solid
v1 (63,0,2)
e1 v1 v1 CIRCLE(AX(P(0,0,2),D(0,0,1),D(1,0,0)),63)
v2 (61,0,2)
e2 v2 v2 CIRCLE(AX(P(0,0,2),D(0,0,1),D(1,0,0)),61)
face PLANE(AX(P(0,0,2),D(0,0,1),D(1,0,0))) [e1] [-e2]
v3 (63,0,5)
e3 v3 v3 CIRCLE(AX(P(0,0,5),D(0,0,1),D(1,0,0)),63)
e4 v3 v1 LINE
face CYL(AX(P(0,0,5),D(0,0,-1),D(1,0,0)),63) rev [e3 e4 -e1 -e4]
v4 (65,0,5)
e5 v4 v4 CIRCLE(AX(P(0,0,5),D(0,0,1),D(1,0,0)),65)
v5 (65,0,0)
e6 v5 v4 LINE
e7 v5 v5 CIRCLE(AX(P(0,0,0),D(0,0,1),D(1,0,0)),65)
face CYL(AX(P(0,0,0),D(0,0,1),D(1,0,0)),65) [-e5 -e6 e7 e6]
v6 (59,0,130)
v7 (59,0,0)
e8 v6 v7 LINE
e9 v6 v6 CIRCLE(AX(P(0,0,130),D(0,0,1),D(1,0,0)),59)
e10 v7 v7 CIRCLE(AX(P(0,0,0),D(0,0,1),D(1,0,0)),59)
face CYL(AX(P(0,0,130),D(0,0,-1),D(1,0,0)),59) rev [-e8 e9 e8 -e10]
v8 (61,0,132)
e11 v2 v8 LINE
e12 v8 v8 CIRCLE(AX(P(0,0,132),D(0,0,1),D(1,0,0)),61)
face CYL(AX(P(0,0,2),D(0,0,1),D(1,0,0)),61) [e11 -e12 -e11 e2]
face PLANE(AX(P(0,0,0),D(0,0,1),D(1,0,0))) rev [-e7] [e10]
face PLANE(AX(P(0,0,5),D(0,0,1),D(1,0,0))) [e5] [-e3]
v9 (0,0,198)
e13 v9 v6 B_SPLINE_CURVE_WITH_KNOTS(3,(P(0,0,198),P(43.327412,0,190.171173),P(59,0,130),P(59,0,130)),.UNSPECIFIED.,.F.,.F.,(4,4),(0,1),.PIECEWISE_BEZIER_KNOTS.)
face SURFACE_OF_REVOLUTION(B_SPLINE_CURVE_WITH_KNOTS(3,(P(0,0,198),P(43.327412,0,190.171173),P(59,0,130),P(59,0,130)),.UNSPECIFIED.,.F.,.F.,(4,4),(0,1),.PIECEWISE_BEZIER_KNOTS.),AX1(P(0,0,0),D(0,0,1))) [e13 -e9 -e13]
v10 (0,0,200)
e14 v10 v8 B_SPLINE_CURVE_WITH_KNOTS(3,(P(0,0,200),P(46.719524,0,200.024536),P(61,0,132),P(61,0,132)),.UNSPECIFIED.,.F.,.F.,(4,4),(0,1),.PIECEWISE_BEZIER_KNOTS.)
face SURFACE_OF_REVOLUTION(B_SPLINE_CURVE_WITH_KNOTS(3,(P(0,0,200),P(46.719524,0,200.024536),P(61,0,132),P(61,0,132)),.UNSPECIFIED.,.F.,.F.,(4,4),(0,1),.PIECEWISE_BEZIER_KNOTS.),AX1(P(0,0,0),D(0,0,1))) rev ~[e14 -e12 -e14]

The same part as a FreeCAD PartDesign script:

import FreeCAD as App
import Part
import Sketcher
from FreeCAD import Vector

doc = App.newDocument("Part")
body = doc.addObject("PartDesign::Body", "Body")

# Sketch on XZ plane
sketch1 = doc.addObject("Sketcher::SketchObject", "Sketch")
body.addObject(sketch1)
sketch1.AttachmentSupport = (doc.XZ_Plane, [""])
sketch1.MapMode = "FlatFace"
sketch1.addGeometry([
    Part.LineSegment(Vector(65, 0, 0), Vector(65, 5, 0)),  # 0
    Part.LineSegment(Vector(65, 5, 0), Vector(63, 5, 0)),  # 1
    Part.LineSegment(Vector(63, 5, 0), Vector(63, 2, 0)),  # 2
    Part.LineSegment(Vector(63, 2, 0), Vector(61, 2, 0)),  # 3
    Part.LineSegment(Vector(61, 2, 0), Vector(61, 132, 0)),  # 4
    Part.BSplineCurve([Vector(0, 200, 0), Vector(46.719524, 200.024536, 0), Vector(61, 132, 0), Vector(61, 132, 0)], [4, 4], [0, 1], False, 3, [1, 1, 1, 1], False),  # 5
    Part.LineSegment(Vector(0, 200, 0), Vector(0, 198, 0)),  # 6
    Part.BSplineCurve([Vector(0, 198, 0), Vector(43.327412, 190.171173, 0), Vector(59, 130, 0), Vector(59, 130, 0)], [4, 4], [0, 1], False, 3, [1, 1, 1, 1], False),  # 7
    Part.LineSegment(Vector(59, 130, 0), Vector(59, 0, 0)),  # 8
    Part.LineSegment(Vector(59, 0, 0), Vector(65, 0, 0)),  # 9
], False)
sketch1.addConstraint([
    Sketcher.Constraint("Block", 5),
    Sketcher.Constraint("Block", 7),
    Sketcher.Constraint("Coincident", 0, 2, 1, 1),
    Sketcher.Constraint("Coincident", 1, 2, 2, 1),
    Sketcher.Constraint("Coincident", 2, 2, 3, 1),
    Sketcher.Constraint("Coincident", 3, 2, 4, 1),
    Sketcher.Constraint("Coincident", 4, 2, 5, 2),
    Sketcher.Constraint("Coincident", 5, 1, 6, 1),
    Sketcher.Constraint("Coincident", 6, 2, 7, 1),
    Sketcher.Constraint("Coincident", 7, 2, 8, 1),
    Sketcher.Constraint("Coincident", 8, 2, 9, 1),
    Sketcher.Constraint("Coincident", 9, 2, 0, 1),
    Sketcher.Constraint("Vertical", 0),
    Sketcher.Constraint("Horizontal", 1),
    Sketcher.Constraint("Vertical", 2),
    Sketcher.Constraint("Horizontal", 3),
    Sketcher.Constraint("Vertical", 4),
    Sketcher.Constraint("Vertical", 8),
    Sketcher.Constraint("Horizontal", 9),
    Sketcher.Constraint("PointOnObject", 8, 2, -1),
    Sketcher.Constraint("Equal", 1, 3),
    Sketcher.Constraint("Equal", 3, 6),
    Sketcher.Constraint("Equal", 4, 8),
    Sketcher.Constraint("DistanceY", 0, 1, 0, 2, 5.0),
])
revolution = doc.addObject("PartDesign::Revolution", "Revolution")
body.addObject(revolution)
revolution.Profile = sketch1
revolution.ReferenceAxis = (sketch1, ["V_Axis"])
revolution.Angle = 360

doc.recompute()
